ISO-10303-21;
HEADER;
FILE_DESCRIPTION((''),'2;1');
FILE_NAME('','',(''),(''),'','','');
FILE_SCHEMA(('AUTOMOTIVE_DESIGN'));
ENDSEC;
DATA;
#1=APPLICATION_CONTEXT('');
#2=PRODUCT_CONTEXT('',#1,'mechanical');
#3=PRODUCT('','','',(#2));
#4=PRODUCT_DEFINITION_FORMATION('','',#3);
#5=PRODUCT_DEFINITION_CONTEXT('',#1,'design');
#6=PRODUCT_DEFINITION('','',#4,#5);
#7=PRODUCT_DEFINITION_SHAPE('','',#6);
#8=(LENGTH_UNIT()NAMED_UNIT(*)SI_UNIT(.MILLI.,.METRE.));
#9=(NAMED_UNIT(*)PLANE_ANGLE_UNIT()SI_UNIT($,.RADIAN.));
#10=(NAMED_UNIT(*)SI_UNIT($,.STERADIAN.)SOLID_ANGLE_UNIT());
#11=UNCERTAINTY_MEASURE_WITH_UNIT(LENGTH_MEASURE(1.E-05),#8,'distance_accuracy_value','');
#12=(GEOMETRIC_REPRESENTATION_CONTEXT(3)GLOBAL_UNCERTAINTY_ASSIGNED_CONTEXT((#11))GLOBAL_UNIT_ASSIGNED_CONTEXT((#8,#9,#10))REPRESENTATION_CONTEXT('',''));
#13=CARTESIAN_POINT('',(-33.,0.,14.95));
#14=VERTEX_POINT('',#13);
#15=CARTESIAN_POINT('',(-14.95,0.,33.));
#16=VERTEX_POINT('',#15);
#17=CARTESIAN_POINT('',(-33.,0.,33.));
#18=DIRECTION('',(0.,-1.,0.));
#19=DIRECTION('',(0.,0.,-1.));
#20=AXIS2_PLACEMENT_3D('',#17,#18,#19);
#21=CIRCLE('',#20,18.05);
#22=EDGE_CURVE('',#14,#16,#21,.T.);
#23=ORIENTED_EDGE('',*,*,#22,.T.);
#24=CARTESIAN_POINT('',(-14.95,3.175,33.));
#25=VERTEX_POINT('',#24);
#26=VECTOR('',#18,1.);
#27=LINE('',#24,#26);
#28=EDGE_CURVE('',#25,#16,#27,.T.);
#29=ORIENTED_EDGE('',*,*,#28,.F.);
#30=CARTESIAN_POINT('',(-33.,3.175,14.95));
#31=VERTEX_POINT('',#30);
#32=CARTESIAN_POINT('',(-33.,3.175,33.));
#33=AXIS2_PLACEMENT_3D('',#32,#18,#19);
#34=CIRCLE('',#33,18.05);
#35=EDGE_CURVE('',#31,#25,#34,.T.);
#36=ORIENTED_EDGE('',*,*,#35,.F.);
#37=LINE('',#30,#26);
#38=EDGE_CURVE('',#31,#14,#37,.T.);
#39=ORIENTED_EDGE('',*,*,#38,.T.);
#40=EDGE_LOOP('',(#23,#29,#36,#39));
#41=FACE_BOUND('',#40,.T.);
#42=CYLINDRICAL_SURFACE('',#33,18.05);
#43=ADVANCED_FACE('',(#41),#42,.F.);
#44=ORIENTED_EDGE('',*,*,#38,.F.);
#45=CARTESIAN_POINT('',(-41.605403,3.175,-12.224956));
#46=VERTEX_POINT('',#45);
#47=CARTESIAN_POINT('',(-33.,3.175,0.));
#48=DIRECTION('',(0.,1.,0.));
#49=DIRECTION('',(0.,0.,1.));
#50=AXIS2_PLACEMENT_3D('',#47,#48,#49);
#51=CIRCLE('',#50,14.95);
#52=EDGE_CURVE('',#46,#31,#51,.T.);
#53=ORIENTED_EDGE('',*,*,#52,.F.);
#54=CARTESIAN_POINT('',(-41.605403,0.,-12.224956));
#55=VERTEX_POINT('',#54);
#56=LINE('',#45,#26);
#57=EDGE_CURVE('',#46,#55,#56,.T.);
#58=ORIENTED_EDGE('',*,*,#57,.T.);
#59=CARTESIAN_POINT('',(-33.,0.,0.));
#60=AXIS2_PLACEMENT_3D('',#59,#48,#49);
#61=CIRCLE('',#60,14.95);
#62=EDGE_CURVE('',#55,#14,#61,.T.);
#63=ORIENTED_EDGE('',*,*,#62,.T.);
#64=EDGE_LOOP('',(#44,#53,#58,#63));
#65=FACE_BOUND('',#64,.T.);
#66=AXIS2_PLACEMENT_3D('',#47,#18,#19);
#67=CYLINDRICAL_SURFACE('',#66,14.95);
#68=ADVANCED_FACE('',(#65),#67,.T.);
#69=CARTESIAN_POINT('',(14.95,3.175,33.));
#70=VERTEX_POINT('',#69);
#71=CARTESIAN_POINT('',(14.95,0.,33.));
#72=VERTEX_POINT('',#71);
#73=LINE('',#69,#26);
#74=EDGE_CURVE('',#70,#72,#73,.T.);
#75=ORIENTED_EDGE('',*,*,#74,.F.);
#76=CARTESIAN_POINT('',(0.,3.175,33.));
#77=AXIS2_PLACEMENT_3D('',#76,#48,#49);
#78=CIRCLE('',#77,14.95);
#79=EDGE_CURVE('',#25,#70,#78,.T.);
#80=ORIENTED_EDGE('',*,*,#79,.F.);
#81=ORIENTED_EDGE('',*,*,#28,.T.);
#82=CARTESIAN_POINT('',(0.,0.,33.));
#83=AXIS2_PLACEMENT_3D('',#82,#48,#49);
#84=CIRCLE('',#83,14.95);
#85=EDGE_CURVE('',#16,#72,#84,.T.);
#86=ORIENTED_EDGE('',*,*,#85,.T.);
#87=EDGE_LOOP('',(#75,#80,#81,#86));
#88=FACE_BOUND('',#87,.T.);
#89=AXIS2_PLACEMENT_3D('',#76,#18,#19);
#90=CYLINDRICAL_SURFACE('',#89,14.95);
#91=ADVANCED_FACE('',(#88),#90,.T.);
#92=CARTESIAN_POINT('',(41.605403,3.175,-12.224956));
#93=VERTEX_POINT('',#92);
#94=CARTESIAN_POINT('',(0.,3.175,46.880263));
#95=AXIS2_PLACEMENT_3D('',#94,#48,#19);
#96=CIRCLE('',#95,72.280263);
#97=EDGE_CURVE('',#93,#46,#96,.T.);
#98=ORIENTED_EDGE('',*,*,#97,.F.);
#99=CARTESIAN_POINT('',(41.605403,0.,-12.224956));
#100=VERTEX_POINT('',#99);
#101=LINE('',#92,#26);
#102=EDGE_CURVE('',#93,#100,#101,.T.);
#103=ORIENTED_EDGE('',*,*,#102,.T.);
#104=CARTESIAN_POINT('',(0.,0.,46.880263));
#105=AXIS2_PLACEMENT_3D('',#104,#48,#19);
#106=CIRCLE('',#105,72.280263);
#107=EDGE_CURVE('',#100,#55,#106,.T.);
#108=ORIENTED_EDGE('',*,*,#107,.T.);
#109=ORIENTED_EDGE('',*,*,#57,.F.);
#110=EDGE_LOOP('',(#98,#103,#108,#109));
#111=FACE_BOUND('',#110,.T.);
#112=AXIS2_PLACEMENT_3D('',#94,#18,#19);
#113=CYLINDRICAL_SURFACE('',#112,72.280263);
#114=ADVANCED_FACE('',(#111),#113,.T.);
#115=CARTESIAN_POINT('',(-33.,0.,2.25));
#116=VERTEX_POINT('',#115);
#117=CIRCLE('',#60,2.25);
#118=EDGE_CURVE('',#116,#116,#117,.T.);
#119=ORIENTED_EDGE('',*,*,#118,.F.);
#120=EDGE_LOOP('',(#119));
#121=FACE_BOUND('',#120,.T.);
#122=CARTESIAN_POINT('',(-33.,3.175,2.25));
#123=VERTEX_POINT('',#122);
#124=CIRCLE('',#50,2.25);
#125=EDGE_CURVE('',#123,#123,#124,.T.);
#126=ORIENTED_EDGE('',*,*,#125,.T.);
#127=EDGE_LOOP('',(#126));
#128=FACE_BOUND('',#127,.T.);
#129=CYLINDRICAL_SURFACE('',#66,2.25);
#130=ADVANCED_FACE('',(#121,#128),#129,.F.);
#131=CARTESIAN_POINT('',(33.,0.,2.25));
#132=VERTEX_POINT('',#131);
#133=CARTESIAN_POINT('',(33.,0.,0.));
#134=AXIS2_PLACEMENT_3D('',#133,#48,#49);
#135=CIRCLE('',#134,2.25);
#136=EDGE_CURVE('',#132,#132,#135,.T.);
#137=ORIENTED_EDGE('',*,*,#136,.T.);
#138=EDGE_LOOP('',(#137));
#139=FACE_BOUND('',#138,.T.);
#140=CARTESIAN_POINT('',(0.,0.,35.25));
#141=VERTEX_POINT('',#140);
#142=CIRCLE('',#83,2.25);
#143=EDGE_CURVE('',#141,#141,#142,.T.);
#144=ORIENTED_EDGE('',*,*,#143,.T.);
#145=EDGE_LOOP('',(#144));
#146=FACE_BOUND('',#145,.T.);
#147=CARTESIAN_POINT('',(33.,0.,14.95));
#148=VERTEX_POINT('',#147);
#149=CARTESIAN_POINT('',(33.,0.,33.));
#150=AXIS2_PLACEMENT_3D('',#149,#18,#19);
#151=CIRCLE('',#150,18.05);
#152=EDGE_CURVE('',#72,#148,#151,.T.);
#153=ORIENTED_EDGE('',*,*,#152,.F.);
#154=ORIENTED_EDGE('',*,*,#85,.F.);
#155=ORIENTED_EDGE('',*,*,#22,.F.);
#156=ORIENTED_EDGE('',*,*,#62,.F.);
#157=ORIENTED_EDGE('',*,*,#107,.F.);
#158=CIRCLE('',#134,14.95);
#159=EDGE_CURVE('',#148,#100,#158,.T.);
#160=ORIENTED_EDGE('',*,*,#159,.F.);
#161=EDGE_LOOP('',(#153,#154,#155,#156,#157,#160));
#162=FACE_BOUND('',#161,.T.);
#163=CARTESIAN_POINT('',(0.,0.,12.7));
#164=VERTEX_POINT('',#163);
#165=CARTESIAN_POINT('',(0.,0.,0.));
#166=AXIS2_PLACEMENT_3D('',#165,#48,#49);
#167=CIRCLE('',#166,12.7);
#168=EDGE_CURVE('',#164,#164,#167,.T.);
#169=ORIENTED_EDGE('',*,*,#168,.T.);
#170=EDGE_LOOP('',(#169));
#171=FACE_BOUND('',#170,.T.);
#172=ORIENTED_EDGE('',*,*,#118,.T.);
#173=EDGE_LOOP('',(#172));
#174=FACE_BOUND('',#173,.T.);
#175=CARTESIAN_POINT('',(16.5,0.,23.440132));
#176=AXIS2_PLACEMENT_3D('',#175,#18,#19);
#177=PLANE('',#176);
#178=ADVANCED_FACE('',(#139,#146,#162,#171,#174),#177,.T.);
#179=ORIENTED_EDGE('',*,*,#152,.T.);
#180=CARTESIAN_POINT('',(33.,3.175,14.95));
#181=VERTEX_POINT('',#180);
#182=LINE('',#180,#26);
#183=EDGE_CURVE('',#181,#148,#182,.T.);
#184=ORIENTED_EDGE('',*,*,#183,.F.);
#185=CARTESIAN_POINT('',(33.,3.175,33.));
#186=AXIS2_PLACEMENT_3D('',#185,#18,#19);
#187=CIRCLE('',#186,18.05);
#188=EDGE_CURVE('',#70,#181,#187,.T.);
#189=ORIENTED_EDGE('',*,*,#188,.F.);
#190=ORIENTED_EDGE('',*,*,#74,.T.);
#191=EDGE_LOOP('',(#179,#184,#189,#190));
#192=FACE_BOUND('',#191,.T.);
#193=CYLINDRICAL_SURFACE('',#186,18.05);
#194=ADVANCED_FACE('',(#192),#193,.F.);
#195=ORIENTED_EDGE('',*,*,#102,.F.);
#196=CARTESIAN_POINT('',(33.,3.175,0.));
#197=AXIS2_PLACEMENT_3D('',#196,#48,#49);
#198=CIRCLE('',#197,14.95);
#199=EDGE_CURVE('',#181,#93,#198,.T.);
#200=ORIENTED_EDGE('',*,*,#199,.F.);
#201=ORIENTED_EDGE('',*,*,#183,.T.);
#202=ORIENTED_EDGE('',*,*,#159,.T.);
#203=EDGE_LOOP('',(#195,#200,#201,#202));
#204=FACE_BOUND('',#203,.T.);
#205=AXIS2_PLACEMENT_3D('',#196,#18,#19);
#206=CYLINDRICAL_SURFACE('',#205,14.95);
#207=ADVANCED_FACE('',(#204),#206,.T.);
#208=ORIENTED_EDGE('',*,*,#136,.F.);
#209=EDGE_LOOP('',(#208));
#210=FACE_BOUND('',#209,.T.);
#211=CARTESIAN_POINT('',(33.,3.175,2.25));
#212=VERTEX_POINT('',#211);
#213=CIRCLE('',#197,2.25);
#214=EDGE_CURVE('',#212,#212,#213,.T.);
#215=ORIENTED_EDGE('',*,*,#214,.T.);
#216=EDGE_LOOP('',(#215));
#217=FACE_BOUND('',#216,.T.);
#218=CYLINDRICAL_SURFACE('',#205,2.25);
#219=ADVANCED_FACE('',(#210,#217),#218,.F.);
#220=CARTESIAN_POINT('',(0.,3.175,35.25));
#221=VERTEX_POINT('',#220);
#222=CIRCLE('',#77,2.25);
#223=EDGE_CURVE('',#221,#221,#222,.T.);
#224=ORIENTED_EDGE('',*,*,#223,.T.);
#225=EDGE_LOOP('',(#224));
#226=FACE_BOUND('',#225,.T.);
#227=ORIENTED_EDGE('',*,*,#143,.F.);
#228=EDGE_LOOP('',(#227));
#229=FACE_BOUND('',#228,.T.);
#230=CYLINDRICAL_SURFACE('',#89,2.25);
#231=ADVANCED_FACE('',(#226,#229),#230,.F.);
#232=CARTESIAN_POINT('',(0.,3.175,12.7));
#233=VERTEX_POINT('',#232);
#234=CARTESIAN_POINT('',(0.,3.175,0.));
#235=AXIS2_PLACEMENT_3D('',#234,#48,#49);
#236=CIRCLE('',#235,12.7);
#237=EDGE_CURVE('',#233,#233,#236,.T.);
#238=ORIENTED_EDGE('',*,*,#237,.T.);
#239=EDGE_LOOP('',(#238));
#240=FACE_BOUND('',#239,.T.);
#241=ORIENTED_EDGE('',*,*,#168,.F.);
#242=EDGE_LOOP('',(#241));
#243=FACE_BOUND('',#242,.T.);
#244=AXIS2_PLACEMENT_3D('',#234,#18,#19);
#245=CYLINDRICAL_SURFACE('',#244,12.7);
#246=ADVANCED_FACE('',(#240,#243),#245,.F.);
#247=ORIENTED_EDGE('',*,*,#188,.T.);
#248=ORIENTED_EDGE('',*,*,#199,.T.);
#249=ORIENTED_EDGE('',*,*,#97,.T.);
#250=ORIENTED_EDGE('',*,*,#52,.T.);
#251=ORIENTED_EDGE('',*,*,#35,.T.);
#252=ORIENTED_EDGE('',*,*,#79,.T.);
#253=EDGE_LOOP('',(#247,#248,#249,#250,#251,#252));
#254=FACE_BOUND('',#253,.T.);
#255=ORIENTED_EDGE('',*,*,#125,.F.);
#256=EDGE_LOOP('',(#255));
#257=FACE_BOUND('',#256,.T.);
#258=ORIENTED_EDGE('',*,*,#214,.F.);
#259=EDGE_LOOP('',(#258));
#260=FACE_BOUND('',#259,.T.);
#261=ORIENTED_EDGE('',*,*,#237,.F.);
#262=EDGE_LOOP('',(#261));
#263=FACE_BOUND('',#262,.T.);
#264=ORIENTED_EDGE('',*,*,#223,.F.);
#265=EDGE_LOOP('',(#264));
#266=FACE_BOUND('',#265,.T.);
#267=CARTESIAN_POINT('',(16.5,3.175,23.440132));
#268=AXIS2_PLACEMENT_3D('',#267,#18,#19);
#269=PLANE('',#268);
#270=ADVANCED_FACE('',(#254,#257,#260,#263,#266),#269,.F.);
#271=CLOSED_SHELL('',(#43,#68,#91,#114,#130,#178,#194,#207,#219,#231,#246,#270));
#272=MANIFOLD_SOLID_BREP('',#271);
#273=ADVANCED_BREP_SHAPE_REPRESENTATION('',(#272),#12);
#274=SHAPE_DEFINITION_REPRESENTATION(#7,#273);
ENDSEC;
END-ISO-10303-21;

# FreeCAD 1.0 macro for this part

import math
import FreeCAD as App
import Part
import Sketcher

V = App.Vector

doc = App.newDocument("Part")
body = doc.addObject("PartDesign::Body", "Body")

sketch1 = doc.addObject("Sketcher::SketchObject", "Sketch")
body.addObject(sketch1)
sketch1.AttachmentSupport = (doc.XZ_Plane, [""])
sketch1.MapMode = "FlatFace"
sketch1.addGeometry(Part.ArcOfCircle(Part.Circle(V(-33, 0, 0), V(0, 0, 1), 14.9), math.radians(90), math.radians(235)), False)
sketch1.addGeometry(Part.ArcOfCircle(Part.Circle(V(-33, 33, 0), V(0, 0, 1), 18.1), math.radians(-90), math.radians(0)), False)
sketch1.addGeometry(Part.ArcOfCircle(Part.Circle(V(0, 33, 0), V(0, 0, 1), 14.9), math.radians(0), math.radians(180)), False)
sketch1.addGeometry(Part.ArcOfCircle(Part.Circle(V(33, 33, 0), V(0, 0, 1), 18.1), math.radians(-180), math.radians(-90)), False)
sketch1.addGeometry(Part.ArcOfCircle(Part.Circle(V(33, 0, 0), V(0, 0, 1), 14.9), math.radians(-55), math.radians(90)), False)
sketch1.addGeometry(Part.ArcOfCircle(Part.Circle(V(0, 46.9, 0), V(0, 0, 1), 72.3), math.radians(-125), math.radians(-55)), False)
sketch1.addGeometry(Part.Circle(V(0, 33, 0), V(0, 0, 1), 2.2), False)
sketch1.addGeometry(Part.Circle(V(-33, 0, 0), V(0, 0, 1), 2.2), False)
sketch1.addGeometry(Part.Circle(V(0, 0, 0), V(0, 0, 1), 12.7), False)
sketch1.addGeometry(Part.Circle(V(33, 0, 0), V(0, 0, 1), 2.2), False)
sketch1.addConstraint(Sketcher.Constraint("Tangent", 0, 1, 1, 1))
sketch1.addConstraint(Sketcher.Constraint("Tangent", 1, 2, 2, 2))
sketch1.addConstraint(Sketcher.Constraint("Tangent", 2, 1, 3, 1))
sketch1.addConstraint(Sketcher.Constraint("Tangent", 3, 2, 4, 2))
sketch1.addConstraint(Sketcher.Constraint("Tangent", 4, 1, 5, 2))
sketch1.addConstraint(Sketcher.Constraint("Tangent", 5, 1, 0, 2))
sketch1.addConstraint(Sketcher.Constraint("Coincident", 8, 3, -1, 1))
sketch1.addConstraint(Sketcher.Constraint("Coincident", 6, 3, 2, 3))
sketch1.addConstraint(Sketcher.Constraint("Coincident", 7, 3, 0, 3))
sketch1.addConstraint(Sketcher.Constraint("Coincident", 9, 3, 4, 3))
sketch1.addConstraint(Sketcher.Constraint("Equal", 0, 2))
sketch1.addConstraint(Sketcher.Constraint("Equal", 1, 3))
sketch1.addConstraint(Sketcher.Constraint("Equal", 2, 4))
sketch1.addConstraint(Sketcher.Constraint("Equal", 6, 7))
sketch1.addConstraint(Sketcher.Constraint("Equal", 7, 9))
sketch1.addConstraint(Sketcher.Constraint("Symmetric", 0, 3, 4, 3, -1, 1))
sketch1.addConstraint(Sketcher.Constraint("Symmetric", 1, 3, 3, 3, -2))
sketch1.addConstraint(Sketcher.Constraint("Horizontal", 1, 3, 2, 3))
sketch1.addConstraint(Sketcher.Constraint("Vertical", 0, 3, 1, 3))
sketch1.addConstraint(Sketcher.Constraint("Diameter", 6, 4.5))
sketch1.addConstraint(Sketcher.Constraint("Diameter", 8, 25.4))
sketch1.addConstraint(Sketcher.Constraint("Radius", 0, 14.95))
sketch1.addConstraint(Sketcher.Constraint("Radius", 1, 18.05))
sketch1.addConstraint(Sketcher.Constraint("Radius", 5, 72.280263))
pad1 = doc.addObject("PartDesign::Pad", "Pad")
body.addObject(pad1)
pad1.Profile = sketch1
pad1.Length = 3.175
pad1.Reversed = True

doc.recompute()
